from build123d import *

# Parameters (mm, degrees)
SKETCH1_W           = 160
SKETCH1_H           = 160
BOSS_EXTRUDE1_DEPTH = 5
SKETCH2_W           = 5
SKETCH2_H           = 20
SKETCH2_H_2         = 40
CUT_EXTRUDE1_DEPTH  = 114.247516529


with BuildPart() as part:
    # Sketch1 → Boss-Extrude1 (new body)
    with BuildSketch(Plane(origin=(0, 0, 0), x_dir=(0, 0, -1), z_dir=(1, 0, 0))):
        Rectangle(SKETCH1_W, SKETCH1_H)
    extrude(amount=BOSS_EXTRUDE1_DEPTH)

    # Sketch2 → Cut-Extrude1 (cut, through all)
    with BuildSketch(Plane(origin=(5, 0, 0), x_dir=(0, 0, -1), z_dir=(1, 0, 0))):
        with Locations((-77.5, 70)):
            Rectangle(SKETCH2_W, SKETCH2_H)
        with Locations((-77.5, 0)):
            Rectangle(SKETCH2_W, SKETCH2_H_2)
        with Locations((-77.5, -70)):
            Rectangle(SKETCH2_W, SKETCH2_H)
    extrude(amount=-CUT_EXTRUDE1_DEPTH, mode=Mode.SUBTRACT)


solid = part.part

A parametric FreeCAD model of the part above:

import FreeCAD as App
import Part
import Sketcher

V = App.Vector

doc = App.newDocument("Part")
body = doc.addObject("PartDesign::Body", "Body")

sketch1 = body.newObject("Sketcher::SketchObject", "Sketch")
sketch1.AttachmentSupport = (doc.getObject("YZ_Plane"), [""])
sketch1.MapMode = "FlatFace"
sketch1.addGeometry(Part.LineSegment(V(80, 80, 0), V(-80, 80, 0)), False)
sketch1.addGeometry(Part.LineSegment(V(-80, 80, 0), V(-80, -80, 0)), False)
sketch1.addGeometry(Part.LineSegment(V(-80, -80, 0), V(80, -80, 0)), False)
sketch1.addGeometry(Part.LineSegment(V(80, -80, 0), V(80, 80, 0)), False)
sketch1.addConstraint(Sketcher.Constraint("Coincident", 0, 2, 1, 1))
sketch1.addConstraint(Sketcher.Constraint("Coincident", 1, 2, 2, 1))
sketch1.addConstraint(Sketcher.Constraint("Coincident", 2, 2, 3, 1))
sketch1.addConstraint(Sketcher.Constraint("Coincident", 3, 2, 0, 1))
sketch1.addConstraint(Sketcher.Constraint("Horizontal", 0))
sketch1.addConstraint(Sketcher.Constraint("Vertical", 1))
sketch1.addConstraint(Sketcher.Constraint("Horizontal", 2))
sketch1.addConstraint(Sketcher.Constraint("Vertical", 3))
sketch1.addConstraint(Sketcher.Constraint("Symmetric", 0, 2, 2, 2, -1, 1))
sketch1.addConstraint(Sketcher.Constraint("Equal", 2, 1))
sketch1.addConstraint(Sketcher.Constraint("DistanceX", 0, 2, 0, 1, 160.0))
pad1 = body.newObject("PartDesign::Pad", "Pad")
pad1.Profile = sketch1
pad1.Length = 5

sketch2 = body.newObject("Sketcher::SketchObject", "Sketch001")
sketch2.AttachmentSupport = (doc.getObject("YZ_Plane"), [""])
sketch2.MapMode = "FlatFace"
sketch2.AttachmentOffset = App.Placement(V(0, 0, 5), App.Rotation())
sketch2.addGeometry(Part.LineSegment(V(80, 80, 0), V(60, 80, 0)), False)
sketch2.addGeometry(Part.LineSegment(V(60, 80, 0), V(60, 75, 0)), False)
sketch2.addGeometry(Part.LineSegment(V(60, 75, 0), V(80, 75, 0)), False)
sketch2.addGeometry(Part.LineSegment(V(80, 75, 0), V(80, 80, 0)), False)
sketch2.addGeometry(Part.LineSegment(V(20, 80, 0), V(-20, 80, 0)), False)
sketch2.addGeometry(Part.LineSegment(V(-20, 80, 0), V(-20, 75, 0)), False)
sketch2.addGeometry(Part.LineSegment(V(-20, 75, 0), V(20, 75, 0)), False)
sketch2.addGeometry(Part.LineSegment(V(20, 75, 0), V(20, 80, 0)), False)
sketch2.addGeometry(Part.LineSegment(V(-60, 80, 0), V(-80, 80, 0)), False)
sketch2.addGeometry(Part.LineSegment(V(-80, 80, 0), V(-80, 75, 0)), False)
sketch2.addGeometry(Part.LineSegment(V(-80, 75, 0), V(-60, 75, 0)), False)
sketch2.addGeometry(Part.LineSegment(V(-60, 75, 0), V(-60, 80, 0)), False)
sketch2.addConstraint(Sketcher.Constraint("Coincident", 0, 2, 1, 1))
sketch2.addConstraint(Sketcher.Constraint("Coincident", 1, 2, 2, 1))
sketch2.addConstraint(Sketcher.Constraint("Coincident", 2, 2, 3, 1))
sketch2.addConstraint(Sketcher.Constraint("Coincident", 3, 2, 0, 1))
sketch2.addConstraint(Sketcher.Constraint("Coincident", 4, 2, 5, 1))
sketch2.addConstraint(Sketcher.Constraint("Coincident", 5, 2, 6, 1))
sketch2.addConstraint(Sketcher.Constraint("Coincident", 6, 2, 7, 1))
sketch2.addConstraint(Sketcher.Constraint("Coincident", 7, 2, 4, 1))
sketch2.addConstraint(Sketcher.Constraint("Coincident", 8, 2, 9, 1))
sketch2.addConstraint(Sketcher.Constraint("Coincident", 9, 2, 10, 1))
sketch2.addConstraint(Sketcher.Constraint("Coincident", 10, 2, 11, 1))
sketch2.addConstraint(Sketcher.Constraint("Coincident", 11, 2, 8, 1))
sketch2.addConstraint(Sketcher.Constraint("Horizontal", 0))
sketch2.addConstraint(Sketcher.Constraint("Vertical", 1))
sketch2.addConstraint(Sketcher.Constraint("Horizontal", 2))
sketch2.addConstraint(Sketcher.Constraint("Vertical", 3))
sketch2.addConstraint(Sketcher.Constraint("Horizontal", 4))
sketch2.addConstraint(Sketcher.Constraint("Vertical", 5))
sketch2.addConstraint(Sketcher.Constraint("Horizontal", 6))
sketch2.addConstraint(Sketcher.Constraint("Vertical", 7))
sketch2.addConstraint(Sketcher.Constraint("Horizontal", 8))
sketch2.addConstraint(Sketcher.Constraint("Vertical", 9))
sketch2.addConstraint(Sketcher.Constraint("Horizontal", 10))
sketch2.addConstraint(Sketcher.Constraint("Vertical", 11))
sketch2.addConstraint(Sketcher.Constraint("Symmetric", 3, 2, 8, 2, -2))
sketch2.addConstraint(Sketcher.Constraint("Symmetric", 1, 2, 10, 2, -2))
sketch2.addConstraint(Sketcher.Constraint("Horizontal", 3, 2, 4, 2))
sketch2.addConstraint(Sketcher.Constraint("Horizontal", 2, 2, 5, 2))
sketch2.addConstraint(Sketcher.Constraint("DistanceX", 0, 2, 0, 1, 20.0))
sketch2.addConstraint(Sketcher.Constraint("DistanceX", 4, 2, 4, 1, 40.0))
sketch2.addConstraint(Sketcher.Constraint("DistanceY", 1, 2, 1, 1, 5.0))
sketch2.addConstraint(Sketcher.Constraint("DistanceX", -1, 1, 0, 2, 60.0))
sketch2.addConstraint(Sketcher.Constraint("DistanceY", -1, 1, 0, 2, 80.0))
sketch2.addConstraint(Sketcher.Constraint("DistanceX", 4, 2, -1, 1, 20.0))
pocket1 = body.newObject("PartDesign::Pocket", "Pocket")
pocket1.Profile = sketch2
pocket1.Type = "ThroughAll"

doc.recompute()
